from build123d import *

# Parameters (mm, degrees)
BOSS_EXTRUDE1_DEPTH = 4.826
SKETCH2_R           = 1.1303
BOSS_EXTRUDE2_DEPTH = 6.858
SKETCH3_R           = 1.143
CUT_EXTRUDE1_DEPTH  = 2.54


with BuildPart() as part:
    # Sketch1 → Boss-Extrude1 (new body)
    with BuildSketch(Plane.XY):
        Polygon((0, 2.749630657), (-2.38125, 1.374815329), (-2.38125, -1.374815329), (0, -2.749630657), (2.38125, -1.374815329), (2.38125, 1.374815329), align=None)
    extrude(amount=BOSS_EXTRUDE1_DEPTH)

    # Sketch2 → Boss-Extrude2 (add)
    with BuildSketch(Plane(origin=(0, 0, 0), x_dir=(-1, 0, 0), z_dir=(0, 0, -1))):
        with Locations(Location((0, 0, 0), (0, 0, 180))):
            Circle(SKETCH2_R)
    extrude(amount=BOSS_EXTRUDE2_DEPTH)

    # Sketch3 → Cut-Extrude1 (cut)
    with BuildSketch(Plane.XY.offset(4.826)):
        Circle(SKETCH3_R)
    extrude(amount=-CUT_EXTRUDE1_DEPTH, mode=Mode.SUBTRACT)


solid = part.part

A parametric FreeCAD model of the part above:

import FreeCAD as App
import Part
import Sketcher
from FreeCAD import Vector
Q = App.Units.Quantity


def add_polygon(sketch, points):
    """Adds a closed chain of lines whose ends are joined by coincident constraints."""
    first, n = sketch.GeometryCount, len(points)
    for a, b in zip(points, points[1:] + points[:1]):
        sketch.addGeometry(Part.LineSegment(App.Vector(*a, 0), App.Vector(*b, 0)), False)
    for i in range(n):
        sketch.addConstraint(Sketcher.Constraint("Coincident", first + i, 2, first + (i + 1) % n, 1))

doc = App.newDocument("Part")
body = doc.addObject("PartDesign::Body", "Body")

sketch1 = body.newObject("Sketcher::SketchObject", "Sketch")
sketch1.AttachmentSupport = (doc.getObject("XY_Plane"), [""])
sketch1.MapMode = "FlatFace"
add_polygon(sketch1, [(0, 2.7), (-2.4, 1.4), (-2.4, -1.4), (0, -2.7), (2.4, -1.4), (2.4, 1.4)])
sketch1.addConstraint(Sketcher.Constraint("Vertical", 1))
sketch1.addConstraint(Sketcher.Constraint("Vertical", 4))
sketch1.addConstraint(Sketcher.Constraint("Symmetric", 0, 2, 3, 2, -1, 1))
sketch1.addConstraint(Sketcher.Constraint("Symmetric", 2, 2, 5, 2, -1, 1))
sketch1.addConstraint(Sketcher.Constraint("PointOnObject", 2, 2, -2))
sketch1.addConstraint(Sketcher.Constraint("Parallel", 2, 5))
sketch1.addConstraint(Sketcher.Constraint("Horizontal", 1, 2, 3, 2))
sketch1.addConstraint(Sketcher.Constraint("Angle", 0, Q("-150 deg")))
sketch1.addConstraint(Sketcher.Constraint("DistanceX", 0, 2, -1, 1, Q("0.09375 in")))
sketch1.addConstraint(Sketcher.Constraint("DistanceY", 1, 2, 1, 1, 2.749631))
pad1 = body.newObject("PartDesign::Pad", "Pad")
pad1.Profile = sketch1
pad1.Length = Q("0.19 in")

sketch2 = body.newObject("Sketcher::SketchObject", "Sketch001")
sketch2.AttachmentSupport = (doc.getObject("XY_Plane"), [""])
sketch2.MapMode = "FlatFace"
sketch2.addGeometry(Part.Circle(Vector(0, 0, 0), Vector(0, 0, 1), 1.1), False)
sketch2.addConstraint(Sketcher.Constraint("Coincident", 0, 3, -1, 1))
sketch2.addConstraint(Sketcher.Constraint("Diameter", 0, Q("0.089 in")))
pad2 = body.newObject("PartDesign::Pad", "Pad001")
pad2.Profile = sketch2
pad2.Length = Q("0.27 in")
pad2.Reversed = True

sketch3 = body.newObject("Sketcher::SketchObject", "Sketch002")
sketch3.AttachmentSupport = (doc.getObject("XY_Plane"), [""])
sketch3.MapMode = "FlatFace"
sketch3.AttachmentOffset = App.Placement(Vector(0, 0, 0.19 * 25.4), App.Rotation())
sketch3.addGeometry(Part.Circle(Vector(0, 0, 0), Vector(0, 0, 1), 1.1), False)
sketch3.addConstraint(Sketcher.Constraint("Coincident", 0, 3, -1, 1))
sketch3.addConstraint(Sketcher.Constraint("Diameter", 0, Q("0.09 in")))
pocket1 = body.newObject("PartDesign::Pocket", "Pocket")
pocket1.Profile = sketch3
pocket1.Length = Q("0.1 in")

doc.recompute()
